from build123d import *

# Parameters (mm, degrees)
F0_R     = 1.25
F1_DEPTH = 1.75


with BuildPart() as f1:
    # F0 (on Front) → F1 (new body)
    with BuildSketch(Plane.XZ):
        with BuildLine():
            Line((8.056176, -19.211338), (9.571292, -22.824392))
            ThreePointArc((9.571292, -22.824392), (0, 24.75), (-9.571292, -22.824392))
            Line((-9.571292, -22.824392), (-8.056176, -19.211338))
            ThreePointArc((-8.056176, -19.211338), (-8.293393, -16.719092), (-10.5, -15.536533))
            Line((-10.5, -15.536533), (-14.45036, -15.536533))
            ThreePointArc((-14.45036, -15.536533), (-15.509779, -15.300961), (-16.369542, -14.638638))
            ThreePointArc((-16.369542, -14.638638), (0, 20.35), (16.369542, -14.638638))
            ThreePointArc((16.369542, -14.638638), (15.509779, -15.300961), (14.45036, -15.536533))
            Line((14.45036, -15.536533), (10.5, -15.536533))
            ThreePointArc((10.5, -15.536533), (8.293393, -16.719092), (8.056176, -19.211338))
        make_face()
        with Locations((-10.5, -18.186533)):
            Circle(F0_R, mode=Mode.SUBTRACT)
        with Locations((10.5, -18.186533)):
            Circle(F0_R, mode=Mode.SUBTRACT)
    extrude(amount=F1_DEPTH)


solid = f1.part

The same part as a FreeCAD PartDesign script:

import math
import FreeCAD as App
import Part
import Sketcher
from FreeCAD import Vector

doc = App.newDocument("Part")
body = doc.addObject("PartDesign::Body", "Body")

sketch1 = doc.addObject("Sketcher::SketchObject", "Sketch")
body.addObject(sketch1)
sketch1.AttachmentSupport = (doc.XZ_Plane, [""])
sketch1.MapMode = "FlatFace"
sketch1.addGeometry(Part.LineSegment(Vector(8.1, -19.2, 0), Vector(9.6, -22.8, 0)), False)
sketch1.addGeometry(Part.ArcOfCircle(Part.Circle(Vector(0, 0, 0), Vector(0, 0, 1), 24.8), math.radians(-67), math.radians(247)), False)
sketch1.addGeometry(Part.LineSegment(Vector(-9.6, -22.8, 0), Vector(-8.1, -19.2, 0)), False)
sketch1.addGeometry(Part.ArcOfCircle(Part.Circle(Vector(-10.5, -18.2, 0), Vector(0, 0, 1), 2.7), math.radians(-23), math.radians(90)), False)
sketch1.addGeometry(Part.LineSegment(Vector(-10.5, -15.5, 0), Vector(-14.5, -15.5, 0)), False)
sketch1.addGeometry(Part.ArcOfCircle(Part.Circle(Vector(-14.5, -13, 0), Vector(0, 0, 1), 2.5), math.radians(-140), math.radians(-90)), False)
sketch1.addGeometry(Part.ArcOfCircle(Part.Circle(Vector(0, -1, 0), Vector(0, 0, 1), 21.3), math.radians(-40), math.radians(220)), False)
sketch1.addGeometry(Part.ArcOfCircle(Part.Circle(Vector(14.5, -13, 0), Vector(0, 0, 1), 2.5), math.radians(-90), math.radians(-40)), False)
sketch1.addGeometry(Part.LineSegment(Vector(14.5, -15.5, 0), Vector(10.5, -15.5, 0)), False)
sketch1.addGeometry(Part.ArcOfCircle(Part.Circle(Vector(10.5, -18.2, 0), Vector(0, 0, 1), 2.7), math.radians(90), math.radians(203)), False)
sketch1.addGeometry(Part.Circle(Vector(-10.5, -18.2, 0), Vector(0, 0, 1), 1.2), False)
sketch1.addGeometry(Part.Circle(Vector(10.5, -18.2, 0), Vector(0, 0, 1), 1.2), False)
sketch1.addConstraint(Sketcher.Constraint("Coincident", 0, 2, 1, 1))
sketch1.addConstraint(Sketcher.Constraint("Coincident", 1, 2, 2, 1))
sketch1.addConstraint(Sketcher.Constraint("Tangent", 2, 2, 3, 1))
sketch1.addConstraint(Sketcher.Constraint("Tangent", 3, 2, 4, 1))
sketch1.addConstraint(Sketcher.Constraint("Tangent", 4, 2, 5, 2))
sketch1.addConstraint(Sketcher.Constraint("Tangent", 5, 1, 6, 2))
sketch1.addConstraint(Sketcher.Constraint("Tangent", 6, 1, 7, 2))
sketch1.addConstraint(Sketcher.Constraint("Tangent", 7, 1, 8, 1))
sketch1.addConstraint(Sketcher.Constraint("Tangent", 8, 2, 9, 1))
sketch1.addConstraint(Sketcher.Constraint("Tangent", 9, 2, 0, 1))
sketch1.addConstraint(Sketcher.Constraint("Horizontal", 4))
sketch1.addConstraint(Sketcher.Constraint("Horizontal", 8))
sketch1.addConstraint(Sketcher.Constraint("Coincident", 1, 3, -1, 1))
sketch1.addConstraint(Sketcher.Constraint("Coincident", 10, 3, 3, 3))
sketch1.addConstraint(Sketcher.Constraint("Coincident", 11, 3, 9, 3))
sketch1.addConstraint(Sketcher.Constraint("Equal", 5, 7))
sketch1.addConstraint(Sketcher.Constraint("Equal", 3, 9))
sketch1.addConstraint(Sketcher.Constraint("Equal", 10, 11))
sketch1.addConstraint(Sketcher.Constraint("Symmetric", 5, 3, 7, 3, -2))
sketch1.addConstraint(Sketcher.Constraint("Symmetric", 2, 2, 9, 2, -2))
sketch1.addConstraint(Sketcher.Constraint("Diameter", 10, 2.5))
sketch1.addConstraint(Sketcher.Constraint("Radius", 1, 24.75))
sketch1.addConstraint(Sketcher.Constraint("Radius", 3, 2.650001))
sketch1.addConstraint(Sketcher.Constraint("DistanceX", 3, 3, 9, 3, 21.000002))
sketch1.addConstraint(Sketcher.Constraint("Radius", 6, 21.323589))
sketch1.addConstraint(Sketcher.Constraint("Radius", 5, 2.499995))
sketch1.addConstraint(Sketcher.Constraint("DistanceX", 4, 2, 4, 1, 3.95036))
sketch1.addConstraint(Sketcher.Constraint("DistanceY", 2, 2, 5, 3, 6.1748))
sketch1.addConstraint(Sketcher.Constraint("DistanceY", 5, 3, -1, 1, 13.036538))
pad1 = doc.addObject("PartDesign::Pad", "Pad")
body.addObject(pad1)
pad1.Profile = sketch1
pad1.Length = 1.75

doc.recompute()
